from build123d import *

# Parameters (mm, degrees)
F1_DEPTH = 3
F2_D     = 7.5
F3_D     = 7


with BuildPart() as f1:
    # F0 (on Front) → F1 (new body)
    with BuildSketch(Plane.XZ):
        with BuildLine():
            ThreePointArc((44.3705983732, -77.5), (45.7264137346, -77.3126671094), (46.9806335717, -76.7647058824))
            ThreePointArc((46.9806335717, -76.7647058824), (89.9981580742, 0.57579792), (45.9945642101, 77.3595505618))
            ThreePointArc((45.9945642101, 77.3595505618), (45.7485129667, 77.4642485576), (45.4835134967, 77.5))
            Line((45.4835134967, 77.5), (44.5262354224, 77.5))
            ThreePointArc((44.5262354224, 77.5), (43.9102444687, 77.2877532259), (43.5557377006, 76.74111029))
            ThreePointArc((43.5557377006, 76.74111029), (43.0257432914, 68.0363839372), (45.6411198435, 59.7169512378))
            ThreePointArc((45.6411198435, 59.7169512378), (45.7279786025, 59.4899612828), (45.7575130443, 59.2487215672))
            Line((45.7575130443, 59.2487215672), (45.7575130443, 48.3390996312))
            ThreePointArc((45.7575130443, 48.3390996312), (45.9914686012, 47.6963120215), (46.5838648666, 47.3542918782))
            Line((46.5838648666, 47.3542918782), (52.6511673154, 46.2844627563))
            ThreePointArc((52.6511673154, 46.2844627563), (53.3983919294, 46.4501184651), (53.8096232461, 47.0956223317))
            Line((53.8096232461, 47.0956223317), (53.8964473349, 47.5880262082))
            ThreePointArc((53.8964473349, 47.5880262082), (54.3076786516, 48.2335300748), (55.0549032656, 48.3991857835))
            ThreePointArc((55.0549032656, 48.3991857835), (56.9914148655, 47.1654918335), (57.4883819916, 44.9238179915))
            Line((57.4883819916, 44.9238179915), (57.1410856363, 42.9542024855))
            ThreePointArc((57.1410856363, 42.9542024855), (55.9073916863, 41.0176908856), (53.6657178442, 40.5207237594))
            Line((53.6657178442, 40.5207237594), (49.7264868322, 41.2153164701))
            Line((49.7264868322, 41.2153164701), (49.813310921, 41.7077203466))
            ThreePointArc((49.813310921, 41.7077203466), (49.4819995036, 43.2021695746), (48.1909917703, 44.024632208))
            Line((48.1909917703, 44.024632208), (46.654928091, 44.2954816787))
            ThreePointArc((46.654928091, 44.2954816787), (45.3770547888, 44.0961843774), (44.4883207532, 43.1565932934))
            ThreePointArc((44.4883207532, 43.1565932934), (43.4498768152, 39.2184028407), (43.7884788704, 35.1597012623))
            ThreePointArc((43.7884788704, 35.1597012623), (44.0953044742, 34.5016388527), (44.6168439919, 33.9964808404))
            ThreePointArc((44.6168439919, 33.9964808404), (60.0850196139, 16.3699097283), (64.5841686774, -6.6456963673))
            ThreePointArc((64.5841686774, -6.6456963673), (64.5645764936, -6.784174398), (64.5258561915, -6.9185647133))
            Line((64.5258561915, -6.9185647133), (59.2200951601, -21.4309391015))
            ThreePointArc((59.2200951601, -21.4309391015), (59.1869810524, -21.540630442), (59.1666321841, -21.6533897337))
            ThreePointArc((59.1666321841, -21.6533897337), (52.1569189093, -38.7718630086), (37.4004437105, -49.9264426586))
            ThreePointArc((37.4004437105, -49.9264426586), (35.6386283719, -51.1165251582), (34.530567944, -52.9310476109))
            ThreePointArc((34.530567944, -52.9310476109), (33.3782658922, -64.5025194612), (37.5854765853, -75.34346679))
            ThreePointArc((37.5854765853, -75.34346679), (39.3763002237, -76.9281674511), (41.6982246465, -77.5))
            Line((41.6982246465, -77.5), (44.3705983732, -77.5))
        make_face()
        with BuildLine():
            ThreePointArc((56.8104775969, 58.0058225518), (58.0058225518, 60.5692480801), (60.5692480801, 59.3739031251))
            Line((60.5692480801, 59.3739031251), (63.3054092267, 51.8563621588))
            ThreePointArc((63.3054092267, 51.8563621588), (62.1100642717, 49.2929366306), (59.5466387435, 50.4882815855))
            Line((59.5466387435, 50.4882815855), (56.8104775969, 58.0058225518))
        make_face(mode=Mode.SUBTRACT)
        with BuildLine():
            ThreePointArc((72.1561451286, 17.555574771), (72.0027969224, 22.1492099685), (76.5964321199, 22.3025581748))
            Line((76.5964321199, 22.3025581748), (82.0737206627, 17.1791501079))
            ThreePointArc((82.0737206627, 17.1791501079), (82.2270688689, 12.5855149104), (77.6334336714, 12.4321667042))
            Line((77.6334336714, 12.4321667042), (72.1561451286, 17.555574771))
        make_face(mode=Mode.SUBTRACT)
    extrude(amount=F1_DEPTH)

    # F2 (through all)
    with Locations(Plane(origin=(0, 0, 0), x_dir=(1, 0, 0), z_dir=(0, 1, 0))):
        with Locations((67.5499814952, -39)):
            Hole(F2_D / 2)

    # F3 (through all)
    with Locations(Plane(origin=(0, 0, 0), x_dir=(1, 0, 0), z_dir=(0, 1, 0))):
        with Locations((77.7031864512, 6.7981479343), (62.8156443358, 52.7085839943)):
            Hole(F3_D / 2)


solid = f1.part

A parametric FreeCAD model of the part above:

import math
import FreeCAD as App
import Part
import Sketcher
from FreeCAD import Vector
Q = App.Units.Quantity

doc = App.newDocument("Part")
body = doc.addObject("PartDesign::Body", "Body")

# Sketch on XZ plane
sketch1 = doc.addObject("Sketcher::SketchObject", "Sketch")
body.addObject(sketch1)
sketch1.AttachmentSupport = (doc.XZ_Plane, [""])
sketch1.MapMode = "FlatFace"
sketch1.addGeometry(Part.ArcOfCircle(Part.Circle(Vector(44.37, -72.5, 0), Vector(0, 0, 1), 5), math.radians(-90), math.radians(-59)), False)
sketch1.addGeometry(Part.ArcOfCircle(Part.Circle(Vector(0, 0, 0), Vector(0, 0, 1), 90), math.radians(-59), math.radians(59)), False)
sketch1.addGeometry(Part.ArcOfCircle(Part.Circle(Vector(45.48, 76.5, 0), Vector(0, 0, 1), 1), math.radians(59), math.radians(90)), False)
sketch1.addGeometry(Part.LineSegment(Vector(45.48, 77.5, 0), Vector(44.53, 77.5, 0)), False)
sketch1.addGeometry(Part.ArcOfCircle(Part.Circle(Vector(44.53, 76.5, 0), Vector(0, 0, 1), 1), math.radians(90), math.radians(166)), False)
sketch1.addGeometry(Part.ArcOfCircle(Part.Circle(Vector(66.85, 70.95, 0), Vector(0, 0, 1), 24), math.radians(166), math.radians(208)), False)
sketch1.addGeometry(Part.ArcOfCircle(Part.Circle(Vector(44.76, 59.25, 0), Vector(0, 0, 1), 1), math.radians(0), math.radians(28)), False)
sketch1.addGeometry(Part.LineSegment(Vector(45.76, 59.25, 0), Vector(45.76, 48.34, 0)), False)
sketch1.addGeometry(Part.ArcOfCircle(Part.Circle(Vector(46.76, 48.34, 0), Vector(0, 0, 1), 1), math.radians(180), math.radians(260)), False)
sketch1.addGeometry(Part.LineSegment(Vector(46.58, 47.35, 0), Vector(52.65, 46.28, 0)), False)
sketch1.addGeometry(Part.ArcOfCircle(Part.Circle(Vector(52.82, 47.27, 0), Vector(0, 0, 1), 1), math.radians(-100), math.radians(-10)), False)
sketch1.addGeometry(Part.LineSegment(Vector(53.81, 47.1, 0), Vector(53.9, 47.59, 0)), False)
sketch1.addGeometry(Part.ArcOfCircle(Part.Circle(Vector(54.88, 47.41, 0), Vector(0, 0, 1), 1), math.radians(80), math.radians(170)), False)
sketch1.addGeometry(Part.ArcOfCircle(Part.Circle(Vector(54.53, 45.44, 0), Vector(0, 0, 1), 3), math.radians(-10), math.radians(80)), False)
sketch1.addGeometry(Part.LineSegment(Vector(57.49, 44.92, 0), Vector(57.14, 42.95, 0)), False)
sketch1.addGeometry(Part.ArcOfCircle(Part.Circle(Vector(54.19, 43.48, 0), Vector(0, 0, 1), 3), math.radians(-100), math.radians(-10)), False)
sketch1.addGeometry(Part.LineSegment(Vector(53.67, 40.52, 0), Vector(49.73, 41.22, 0)), False)
sketch1.addGeometry(Part.LineSegment(Vector(49.73, 41.22, 0), Vector(49.81, 41.71, 0)), False)
sketch1.addGeometry(Part.ArcOfCircle(Part.Circle(Vector(47.84, 42.06, 0), Vector(0, 0, 1), 2), math.radians(-10), math.radians(80)), False)
sketch1.addGeometry(Part.LineSegment(Vector(48.19, 44.02, 0), Vector(46.65, 44.3, 0)), False)
sketch1.addGeometry(Part.ArcOfCircle(Part.Circle(Vector(46.31, 42.33, 0), Vector(0, 0, 1), 2), math.radians(80), math.radians(155)), False)
sketch1.addGeometry(Part.ArcOfCircle(Part.Circle(Vector(55.4, 38.17, 0), Vector(0, 0, 1), 12), math.radians(155), math.radians(195)), False)
sketch1.addGeometry(Part.ArcOfCircle(Part.Circle(Vector(45.72, 35.66, 0), Vector(0, 0, 1), 2), math.radians(-165), math.radians(-124)), False)
sketch1.addGeometry(Part.ArcOfCircle(Part.Circle(Vector(19.7, -3.47, 0), Vector(0, 0, 1), 45), math.radians(-4), math.radians(56)), False)
sketch1.addGeometry(Part.ArcOfCircle(Part.Circle(Vector(63.59, -6.58, 0), Vector(0, 0, 1), 1), math.radians(-20.08), math.radians(-4.04)), False)
sketch1.addGeometry(Part.LineSegment(Vector(64.53, -6.92, 0), Vector(59.22, -21.43, 0)), False)
sketch1.addGeometry(Part.ArcOfCircle(Part.Circle(Vector(60.16, -21.77, 0), Vector(0, 0, 1), 1), math.radians(159.92), math.radians(173.05)), False)
sketch1.addGeometry(Part.ArcOfCircle(Part.Circle(Vector(24.42, -17.42, 0), Vector(0, 0, 1), 35), math.radians(-68), math.radians(-7)), False)
sketch1.addGeometry(Part.ArcOfCircle(Part.Circle(Vector(39.25, -54.57, 0), Vector(0, 0, 1), 5), math.radians(112), math.radians(161)), False)
sketch1.addGeometry(Part.ArcOfCircle(Part.Circle(Vector(58.15, -61.13, 0), Vector(0, 0, 1), 25), math.radians(161), math.radians(215)), False)
sketch1.addGeometry(Part.ArcOfCircle(Part.Circle(Vector(41.7, -72.5, 0), Vector(0, 0, 1), 5), math.radians(-145), math.radians(-90)), False)
sketch1.addGeometry(Part.LineSegment(Vector(41.7, -77.5, 0), Vector(44.37, -77.5, 0)), False)
sketch1.addGeometry(Part.LineSegment(Vector(77.63, 12.43, 0), Vector(72.16, 17.56, 0)), False)
sketch1.addGeometry(Part.ArcOfCircle(Part.Circle(Vector(74.38, 19.93, 0), Vector(0, 0, 1), 3.25), math.radians(47), math.radians(227)), False)
sketch1.addGeometry(Part.LineSegment(Vector(76.6, 22.3, 0), Vector(82.07, 17.18, 0)), False)
sketch1.addGeometry(Part.ArcOfCircle(Part.Circle(Vector(79.85, 14.81, 0), Vector(0, 0, 1), 3.25), math.radians(-133), math.radians(47)), False)
sketch1.addGeometry(Part.LineSegment(Vector(59.55, 50.49, 0), Vector(56.81, 58.01, 0)), False)
sketch1.addGeometry(Part.ArcOfCircle(Part.Circle(Vector(58.69, 58.69, 0), Vector(0, 0, 1), 2), math.radians(20), math.radians(200)), False)
sketch1.addGeometry(Part.LineSegment(Vector(60.57, 59.37, 0), Vector(63.31, 51.86, 0)), False)
sketch1.addGeometry(Part.ArcOfCircle(Part.Circle(Vector(61.43, 51.17, 0), Vector(0, 0, 1), 2), math.radians(-160), math.radians(20)), False)
sketch1.addConstraint(Sketcher.Constraint("Tangent", 0, 2, 1, 1))
sketch1.addConstraint(Sketcher.Constraint("Tangent", 1, 2, 2, 1))
sketch1.addConstraint(Sketcher.Constraint("Tangent", 2, 2, 3, 1))
sketch1.addConstraint(Sketcher.Constraint("Tangent", 3, 2, 4, 1))
sketch1.addConstraint(Sketcher.Constraint("Tangent", 4, 2, 5, 1))
sketch1.addConstraint(Sketcher.Constraint("Tangent", 5, 2, 6, 2))
sketch1.addConstraint(Sketcher.Constraint("Tangent", 6, 1, 7, 1))
sketch1.addConstraint(Sketcher.Constraint("Tangent", 7, 2, 8, 1))
sketch1.addConstraint(Sketcher.Constraint("Tangent", 8, 2, 9, 1))
sketch1.addConstraint(Sketcher.Constraint("Tangent", 9, 2, 10, 1))
sketch1.addConstraint(Sketcher.Constraint("Tangent", 10, 2, 11, 1))
sketch1.addConstraint(Sketcher.Constraint("Tangent", 11, 2, 12, 2))
sketch1.addConstraint(Sketcher.Constraint("Tangent", 12, 1, 13, 2))
sketch1.addConstraint(Sketcher.Constraint("Tangent", 13, 1, 14, 1))
sketch1.addConstraint(Sketcher.Constraint("Tangent", 14, 2, 15, 2))
sketch1.addConstraint(Sketcher.Constraint("Tangent", 15, 1, 16, 1))
sketch1.addConstraint(Sketcher.Constraint("Coincident", 16, 2, 17, 1))
sketch1.addConstraint(Sketcher.Constraint("Tangent", 17, 2, 18, 1))
sketch1.addConstraint(Sketcher.Constraint("Tangent", 18, 2, 19, 1))
sketch1.addConstraint(Sketcher.Constraint("Tangent", 19, 2, 20, 1))
sketch1.addConstraint(Sketcher.Constraint("Tangent", 20, 2, 21, 1))
sketch1.addConstraint(Sketcher.Constraint("Tangent", 21, 2, 22, 1))
sketch1.addConstraint(Sketcher.Constraint("Tangent", 22, 2, 23, 2))
sketch1.addConstraint(Sketcher.Constraint("Tangent", 23, 1, 24, 2))
sketch1.addConstraint(Sketcher.Constraint("Tangent", 24, 1, 25, 1))
sketch1.addConstraint(Sketcher.Constraint("Tangent", 25, 2, 26, 1))
sketch1.addConstraint(Sketcher.Constraint("Tangent", 26, 2, 27, 2))
sketch1.addConstraint(Sketcher.Constraint("Tangent", 27, 1, 28, 1))
sketch1.addConstraint(Sketcher.Constraint("Tangent", 28, 2, 29, 1))
sketch1.addConstraint(Sketcher.Constraint("Tangent", 29, 2, 30, 1))
sketch1.addConstraint(Sketcher.Constraint("Tangent", 30, 2, 31, 1))
sketch1.addConstraint(Sketcher.Constraint("Tangent", 31, 2, 0, 1))
sketch1.addConstraint(Sketcher.Constraint("Tangent", 32, 2, 33, 2))
sketch1.addConstraint(Sketcher.Constraint("Tangent", 33, 1, 34, 1))
sketch1.addConstraint(Sketcher.Constraint("Tangent", 34, 2, 35, 2))
sketch1.addConstraint(Sketcher.Constraint("Tangent", 35, 1, 32, 1))
sketch1.addConstraint(Sketcher.Constraint("Tangent", 36, 2, 37, 2))
sketch1.addConstraint(Sketcher.Constraint("Tangent", 37, 1, 38, 1))
sketch1.addConstraint(Sketcher.Constraint("Tangent", 38, 2, 39, 2))
sketch1.addConstraint(Sketcher.Constraint("Tangent", 39, 1, 36, 1))
sketch1.addConstraint(Sketcher.Constraint("Horizontal", 3))
sketch1.addConstraint(Sketcher.Constraint("Vertical", 7))
sketch1.addConstraint(Sketcher.Constraint("Horizontal", 31))
sketch1.addConstraint(Sketcher.Constraint("Coincident", 1, 3, -1, 1))
sketch1.addConstraint(Sketcher.Constraint("Equal", 2, 4))
sketch1.addConstraint(Sketcher.Constraint("Equal", 4, 6))
sketch1.addConstraint(Sketcher.Constraint("Equal", 6, 8))
sketch1.addConstraint(Sketcher.Constraint("Equal", 8, 10))
sketch1.addConstraint(Sketcher.Constraint("Equal", 10, 12))
sketch1.addConstraint(Sketcher.Constraint("Equal", 13, 15))
sketch1.addConstraint(Sketcher.Constraint("Equal", 18, 20))
sketch1.addConstraint(Sketcher.Constraint("Equal", 20, 22))
sketch1.addConstraint(Sketcher.Constraint("Equal", 12, 24))
sketch1.addConstraint(Sketcher.Constraint("Equal", 24, 26))
sketch1.addConstraint(Sketcher.Constraint("Equal", 0, 28))
sketch1.addConstraint(Sketcher.Constraint("Equal", 28, 30))
sketch1.addConstraint(Sketcher.Constraint("Equal", 33, 35))
sketch1.addConstraint(Sketcher.Constraint("Equal", 22, 37))
sketch1.addConstraint(Sketcher.Constraint("Equal", 37, 39))
sketch1.addConstraint(Sketcher.Constraint("Perpendicular", 9, 11))
sketch1.addConstraint(Sketcher.Constraint("Parallel", 11, 14))
sketch1.addConstraint(Sketcher.Constraint("Perpendicular", 14, 16))
sketch1.addConstraint(Sketcher.Constraint("Perpendicular", 16, 17))
sketch1.addConstraint(Sketcher.Constraint("Perpendicular", 17, 19))
sketch1.addConstraint(Sketcher.Constraint("Equal", 11, 17))
sketch1.addConstraint(Sketcher.Constraint("Radius", 0, 5.0))
sketch1.addConstraint(Sketcher.Constraint("Radius", 1, 90.0))
sketch1.addConstraint(Sketcher.Constraint("Radius", 2, 1.0))
sketch1.addConstraint(Sketcher.Constraint("Radius", 5, 24.0))
sketch1.addConstraint(Sketcher.Constraint("Radius", 13, 3.0))
sketch1.addConstraint(Sketcher.Constraint("Radius", 18, 2.0))
sketch1.addConstraint(Sketcher.Constraint("Radius", 21, 12.0))
sketch1.addConstraint(Sketcher.Constraint("Radius", 23, 45.0))
sketch1.addConstraint(Sketcher.Constraint("Radius", 27, 35.0))
sketch1.addConstraint(Sketcher.Constraint("Radius", 29, 25.0))
sketch1.addConstraint(Sketcher.Constraint("Angle", 9, Q("-10 deg")))
sketch1.addConstraint(Sketcher.Constraint("Angle", 36, Q("110 deg")))
sketch1.addConstraint(Sketcher.Constraint("Radius", 33, 3.25))
sketch1.addConstraint(Sketcher.Constraint("Distance", 14, 2.0))
sketch1.addConstraint(Sketcher.Constraint("Distance", 16, 4.0))
sketch1.addConstraint(Sketcher.Constraint("Distance", 36, 8.0))
sketch1.addConstraint(Sketcher.Constraint("Distance", 11, 0.5))
sketch1.addConstraint(Sketcher.Constraint("Distance", 32, 7.5))
sketch1.addConstraint(Sketcher.Constraint("DistanceY", 0, 3, -1, 1, 72.5))
sketch1.addConstraint(Sketcher.Constraint("DistanceY", -1, 1, 2, 3, 76.5))
sketch1.addConstraint(Sketcher.Constraint("Distance", 9, 6.1609))
sketch1.addConstraint(Sketcher.Constraint("DistanceX", 3, 2, 3, 1, 0.957278))
sketch1.addConstraint(Sketcher.Constraint("DistanceY", 7, 2, 7, 1, 10.909622))
sketch1.addConstraint(Sketcher.Constraint("DistanceY", -1, 1, 8, 3, 48.3391))
sketch1.addConstraint(Sketcher.Constraint("DistanceY", -1, 1, 21, 2, 35.159701))
sketch1.addConstraint(Sketcher.Constraint("Distance", 19, 1.55976))
sketch1.addConstraint(Sketcher.Constraint("DistanceX", 31, 1, 31, 2, 2.672374))
sketch1.addConstraint(Sketcher.Constraint("DistanceX", -1, 1, 13, 3, 54.533959))
sketch1.addConstraint(Sketcher.Constraint("DistanceY", -1, 1, 21, 3, 38.172231))
sketch1.addConstraint(Sketcher.Constraint("DistanceX", -1, 1, 22, 3, 45.72443))
sketch1.addConstraint(Sketcher.Constraint("DistanceY", 24, 3, -1, 1, 6.575191))
sketch1.addConstraint(Sketcher.Constraint("DistanceY", 27, 3, -1, 1, 17.421089))
sketch1.addConstraint(Sketcher.Constraint("DistanceX", -1, 1, 33, 3, 74.376289))
sketch1.addConstraint(Sketcher.Constraint("DistanceY", -1, 1, 35, 3, 14.805658))
sketch1.addConstraint(Sketcher.Constraint("DistanceY", -1, 1, 39, 3, 51.172322))
sketch1.addConstraint(Sketcher.Constraint("DistanceY", -1, 1, 22, 2, 33.996481))
sketch1.addConstraint(Sketcher.Constraint("DistanceY", 25, 2, -1, 1, 21.430939))
sketch1.addConstraint(Sketcher.Constraint("DistanceY", 26, 2, -1, 1, 21.65339))
sketch1.addConstraint(Sketcher.Constraint("DistanceY", -1, 1, 33, 1, 22.302558))
sketch1.addConstraint(Sketcher.Constraint("DistanceX", -1, 1, 37, 1, 60.569248))
sketch1.addConstraint(Sketcher.Constraint("DistanceX", -1, 1, 28, 3, 39.254298))
pad1 = doc.addObject("PartDesign::Pad", "Pad")
body.addObject(pad1)
pad1.Profile = sketch1
pad1.Length = 3

# Sketch on XZ plane
sketch2 = doc.addObject("Sketcher::SketchObject", "Sketch001")
body.addObject(sketch2)
sketch2.AttachmentSupport = (doc.XZ_Plane, [""])
sketch2.MapMode = "FlatFace"
sketch2.addGeometry(Part.Circle(Vector(67.5, 39, 0), Vector(0, 0, 1), 3.8), False)
sketch2.addConstraint(Sketcher.Constraint("Diameter", 0, 7.5))
sketch2.addConstraint(Sketcher.Constraint("DistanceY", -1, 1, 0, 3, 39.0))
sketch2.addConstraint(Sketcher.Constraint("DistanceX", -1, 1, 0, 3, 67.549981))
doc.recompute()
hole = doc.addObject("PartDesign::Hole", "Hole")
body.addObject(hole)
hole.Profile = sketch2
hole.ThreadType = "None"
hole.Diameter = 7.5
hole.DepthType = "ThroughAll"
hole.Reversed = True

# Sketch on XZ plane
sketch3 = doc.addObject("Sketcher::SketchObject", "Sketch002")
body.addObject(sketch3)
sketch3.AttachmentSupport = (doc.XZ_Plane, [""])
sketch3.MapMode = "FlatFace"
sketch3.addGeometry(Part.Circle(Vector(77.7, -6.8, 0), Vector(0, 0, 1), 3.5), False)
sketch3.addGeometry(Part.Circle(Vector(62.8, -52.7, 0), Vector(0, 0, 1), 3.5), False)
sketch3.addConstraint(Sketcher.Constraint("Equal", 0, 1))
sketch3.addConstraint(Sketcher.Constraint("Diameter", 0, 7.0))
sketch3.addConstraint(Sketcher.Constraint("DistanceX", -1, 1, 0, 3, 77.703186))
sketch3.addConstraint(Sketcher.Constraint("DistanceY", 0, 3, -1, 1, 6.798148))
sketch3.addConstraint(Sketcher.Constraint("DistanceX", -1, 1, 1, 3, 62.815644))
sketch3.addConstraint(Sketcher.Constraint("DistanceY", 1, 3, -1, 1, 52.708584))
doc.recompute()
hole2 = doc.addObject("PartDesign::Hole", "Hole001")
body.addObject(hole2)
hole2.Profile = sketch3
hole2.ThreadType = "None"
hole2.Diameter = 7
hole2.DepthType = "ThroughAll"
hole2.Reversed = True

doc.recompute()
